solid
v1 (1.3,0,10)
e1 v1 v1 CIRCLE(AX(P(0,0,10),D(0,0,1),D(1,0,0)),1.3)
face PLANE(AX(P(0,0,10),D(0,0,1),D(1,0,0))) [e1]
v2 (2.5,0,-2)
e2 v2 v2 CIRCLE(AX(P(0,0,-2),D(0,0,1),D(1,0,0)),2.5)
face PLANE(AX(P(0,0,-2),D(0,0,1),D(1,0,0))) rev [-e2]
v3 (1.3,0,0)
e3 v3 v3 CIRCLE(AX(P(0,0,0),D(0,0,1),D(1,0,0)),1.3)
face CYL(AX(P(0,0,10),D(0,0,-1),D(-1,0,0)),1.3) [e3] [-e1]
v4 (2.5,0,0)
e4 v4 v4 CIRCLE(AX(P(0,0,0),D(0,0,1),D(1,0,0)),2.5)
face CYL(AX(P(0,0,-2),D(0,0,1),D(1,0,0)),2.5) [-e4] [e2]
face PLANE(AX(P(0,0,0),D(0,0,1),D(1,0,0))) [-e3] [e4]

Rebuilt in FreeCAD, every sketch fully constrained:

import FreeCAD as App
import Part
import Sketcher

doc = App.newDocument("Part")
body = doc.addObject("PartDesign::Body", "Body")

sketch1 = body.newObject("Sketcher::SketchObject", "Sketch")
sketch1.AttachmentSupport = (doc.getObject("XY_Plane"), [""])
sketch1.MapMode = "FlatFace"
sketch1.addGeometry(Part.Circle(App.Vector(0, 0, 0), App.Vector(0, 0, 1), 1.3), False)
sketch1.addConstraint([
    Sketcher.Constraint("Coincident", 0, 3, -1, 1),
    Sketcher.Constraint("Diameter", 0, 2.6),
])
pad1 = body.newObject("PartDesign::Pad", "Pad")
pad1.Profile = sketch1
pad1.Length = 10

sketch2 = body.newObject("Sketcher::SketchObject", "Sketch001")
sketch2.AttachmentSupport = (doc.getObject("XY_Plane"), [""])
sketch2.MapMode = "FlatFace"
sketch2.addGeometry(Part.Circle(App.Vector(0, 0, 0), App.Vector(0, 0, 1), 2.5), False)
sketch2.addConstraint([
    Sketcher.Constraint("Coincident", 0, 3, -1, 1),
    Sketcher.Constraint("Diameter", 0, 5.0),
])
pad2 = body.newObject("PartDesign::Pad", "Pad001")
pad2.Profile = sketch2
pad2.Length = 2
pad2.Reversed = True

doc.recompute()
